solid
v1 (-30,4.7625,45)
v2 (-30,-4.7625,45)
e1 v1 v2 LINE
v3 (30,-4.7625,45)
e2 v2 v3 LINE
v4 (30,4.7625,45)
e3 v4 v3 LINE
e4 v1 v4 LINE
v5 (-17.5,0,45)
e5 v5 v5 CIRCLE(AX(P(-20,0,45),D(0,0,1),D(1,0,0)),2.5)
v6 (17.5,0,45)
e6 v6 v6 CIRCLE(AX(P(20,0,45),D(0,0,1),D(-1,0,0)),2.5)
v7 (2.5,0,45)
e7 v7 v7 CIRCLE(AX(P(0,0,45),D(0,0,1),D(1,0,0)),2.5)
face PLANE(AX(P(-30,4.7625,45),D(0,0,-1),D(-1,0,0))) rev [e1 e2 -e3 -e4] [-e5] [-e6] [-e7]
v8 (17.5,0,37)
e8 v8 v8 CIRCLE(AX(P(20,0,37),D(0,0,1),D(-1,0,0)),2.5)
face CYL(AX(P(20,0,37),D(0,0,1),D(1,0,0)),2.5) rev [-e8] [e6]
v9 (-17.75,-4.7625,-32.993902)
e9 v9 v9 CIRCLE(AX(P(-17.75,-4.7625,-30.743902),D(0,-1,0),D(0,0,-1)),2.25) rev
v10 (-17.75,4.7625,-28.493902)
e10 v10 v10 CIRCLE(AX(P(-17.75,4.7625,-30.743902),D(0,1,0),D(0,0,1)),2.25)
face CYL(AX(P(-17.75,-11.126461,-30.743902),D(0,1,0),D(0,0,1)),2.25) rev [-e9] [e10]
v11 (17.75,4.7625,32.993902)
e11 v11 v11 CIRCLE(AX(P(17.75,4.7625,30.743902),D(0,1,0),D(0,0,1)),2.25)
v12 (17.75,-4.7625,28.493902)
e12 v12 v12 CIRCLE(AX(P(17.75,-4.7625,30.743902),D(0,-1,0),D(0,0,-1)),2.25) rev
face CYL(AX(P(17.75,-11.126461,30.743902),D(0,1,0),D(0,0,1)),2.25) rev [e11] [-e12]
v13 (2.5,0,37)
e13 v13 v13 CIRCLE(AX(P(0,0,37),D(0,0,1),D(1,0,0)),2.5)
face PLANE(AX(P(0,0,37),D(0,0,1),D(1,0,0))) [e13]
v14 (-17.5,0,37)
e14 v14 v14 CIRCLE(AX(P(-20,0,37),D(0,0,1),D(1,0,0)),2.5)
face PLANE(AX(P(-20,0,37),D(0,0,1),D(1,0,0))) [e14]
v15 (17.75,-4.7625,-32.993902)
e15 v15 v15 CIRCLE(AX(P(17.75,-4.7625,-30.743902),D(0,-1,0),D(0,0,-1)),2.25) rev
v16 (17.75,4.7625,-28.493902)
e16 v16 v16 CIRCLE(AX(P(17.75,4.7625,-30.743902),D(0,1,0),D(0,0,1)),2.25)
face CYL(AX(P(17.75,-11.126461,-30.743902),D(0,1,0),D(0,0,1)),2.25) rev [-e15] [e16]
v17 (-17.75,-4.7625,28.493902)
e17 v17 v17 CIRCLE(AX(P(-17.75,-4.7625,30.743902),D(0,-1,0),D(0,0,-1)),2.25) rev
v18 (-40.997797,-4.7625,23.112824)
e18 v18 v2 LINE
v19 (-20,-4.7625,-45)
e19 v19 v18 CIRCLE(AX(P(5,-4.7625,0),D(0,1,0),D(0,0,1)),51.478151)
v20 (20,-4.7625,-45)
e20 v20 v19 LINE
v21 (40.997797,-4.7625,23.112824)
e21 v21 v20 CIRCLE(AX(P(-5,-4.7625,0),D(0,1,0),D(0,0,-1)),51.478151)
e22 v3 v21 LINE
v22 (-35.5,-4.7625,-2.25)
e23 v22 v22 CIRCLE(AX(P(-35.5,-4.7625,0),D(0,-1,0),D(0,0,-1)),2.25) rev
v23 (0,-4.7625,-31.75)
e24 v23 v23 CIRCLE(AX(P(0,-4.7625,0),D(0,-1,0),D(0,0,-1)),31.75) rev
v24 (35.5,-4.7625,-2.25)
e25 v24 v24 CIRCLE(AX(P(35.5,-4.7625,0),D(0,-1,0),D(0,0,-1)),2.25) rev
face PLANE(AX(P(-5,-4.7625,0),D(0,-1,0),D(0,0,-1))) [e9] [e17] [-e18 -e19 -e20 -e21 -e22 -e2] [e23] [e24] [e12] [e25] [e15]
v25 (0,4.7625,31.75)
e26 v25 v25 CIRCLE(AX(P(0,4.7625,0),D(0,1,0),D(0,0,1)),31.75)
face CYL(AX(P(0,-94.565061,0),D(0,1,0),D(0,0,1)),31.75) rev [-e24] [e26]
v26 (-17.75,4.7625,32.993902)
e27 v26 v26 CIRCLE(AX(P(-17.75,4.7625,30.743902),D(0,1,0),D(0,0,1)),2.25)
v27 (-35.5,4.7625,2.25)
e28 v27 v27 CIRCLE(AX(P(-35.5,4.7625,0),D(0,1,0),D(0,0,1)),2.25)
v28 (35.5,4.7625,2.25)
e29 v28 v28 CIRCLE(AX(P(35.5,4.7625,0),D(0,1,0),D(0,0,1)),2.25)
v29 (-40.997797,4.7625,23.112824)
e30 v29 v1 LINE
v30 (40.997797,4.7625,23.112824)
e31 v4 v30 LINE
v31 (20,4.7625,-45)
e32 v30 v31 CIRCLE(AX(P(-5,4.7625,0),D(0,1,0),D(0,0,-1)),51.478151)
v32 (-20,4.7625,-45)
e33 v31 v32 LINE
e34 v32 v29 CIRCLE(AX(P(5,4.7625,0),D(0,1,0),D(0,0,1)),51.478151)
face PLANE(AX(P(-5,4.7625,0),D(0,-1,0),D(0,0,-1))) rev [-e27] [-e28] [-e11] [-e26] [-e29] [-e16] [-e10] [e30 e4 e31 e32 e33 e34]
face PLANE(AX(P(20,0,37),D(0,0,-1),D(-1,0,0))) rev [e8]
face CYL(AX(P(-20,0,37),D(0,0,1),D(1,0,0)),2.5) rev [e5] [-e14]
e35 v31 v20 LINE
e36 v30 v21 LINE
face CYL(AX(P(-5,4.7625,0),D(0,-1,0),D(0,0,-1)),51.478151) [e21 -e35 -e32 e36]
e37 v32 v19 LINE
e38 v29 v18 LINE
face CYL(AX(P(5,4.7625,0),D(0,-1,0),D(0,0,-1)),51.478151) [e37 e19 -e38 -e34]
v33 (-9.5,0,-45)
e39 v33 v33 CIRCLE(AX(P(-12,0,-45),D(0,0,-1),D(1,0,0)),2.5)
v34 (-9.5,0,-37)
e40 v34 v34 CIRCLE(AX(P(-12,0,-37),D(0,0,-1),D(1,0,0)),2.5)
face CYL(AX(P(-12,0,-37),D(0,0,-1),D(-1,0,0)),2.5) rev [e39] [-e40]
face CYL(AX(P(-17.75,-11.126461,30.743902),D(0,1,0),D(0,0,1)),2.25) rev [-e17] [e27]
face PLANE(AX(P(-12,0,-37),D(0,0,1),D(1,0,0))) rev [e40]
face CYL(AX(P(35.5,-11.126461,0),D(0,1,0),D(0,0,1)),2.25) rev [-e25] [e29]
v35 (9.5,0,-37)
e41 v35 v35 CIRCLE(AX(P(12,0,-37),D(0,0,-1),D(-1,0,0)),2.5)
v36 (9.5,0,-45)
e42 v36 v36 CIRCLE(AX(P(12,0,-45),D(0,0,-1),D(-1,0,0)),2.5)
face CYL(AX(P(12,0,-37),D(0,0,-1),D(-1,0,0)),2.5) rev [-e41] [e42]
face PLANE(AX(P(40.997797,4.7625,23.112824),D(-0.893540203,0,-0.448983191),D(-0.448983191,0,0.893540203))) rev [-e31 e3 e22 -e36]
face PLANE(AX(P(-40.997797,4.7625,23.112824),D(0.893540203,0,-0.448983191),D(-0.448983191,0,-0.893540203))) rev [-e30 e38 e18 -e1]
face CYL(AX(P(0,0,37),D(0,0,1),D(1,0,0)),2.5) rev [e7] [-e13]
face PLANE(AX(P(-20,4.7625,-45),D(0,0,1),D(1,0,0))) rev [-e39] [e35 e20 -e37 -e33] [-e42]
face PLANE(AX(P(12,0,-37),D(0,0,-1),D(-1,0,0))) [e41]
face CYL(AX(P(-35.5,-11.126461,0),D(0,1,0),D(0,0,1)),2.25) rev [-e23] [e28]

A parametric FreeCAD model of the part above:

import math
import FreeCAD as App
import Part
import Sketcher
from FreeCAD import Vector

doc = App.newDocument("Part")
body = doc.addObject("PartDesign::Body", "Body")

sketch1 = body.newObject("Sketcher::SketchObject", "Sketch")
sketch1.AttachmentSupport = (doc.getObject("XZ_Plane"), [""])
sketch1.MapMode = "FlatFace"
sketch1.addGeometry(Part.LineSegment(Vector(-30, 45, 0), Vector(30, 45, 0)), False)
sketch1.addGeometry(Part.LineSegment(Vector(30, 45, 0), Vector(41, 23, 0)), False)
sketch1.addGeometry(Part.ArcOfCircle(Part.Circle(Vector(-5, 0, 0), Vector(0, 0, 1), 51), math.radians(-61), math.radians(27)), False)
sketch1.addGeometry(Part.LineSegment(Vector(20, -45, 0), Vector(-20, -45, 0)), False)
sketch1.addGeometry(Part.ArcOfCircle(Part.Circle(Vector(5, 0, 0), Vector(0, 0, 1), 51), math.radians(153), math.radians(241)), False)
sketch1.addGeometry(Part.LineSegment(Vector(-41, 23, 0), Vector(-30, 45, 0)), False)
sketch1.addConstraint(Sketcher.Constraint("Coincident", 0, 2, 1, 1))
sketch1.addConstraint(Sketcher.Constraint("Tangent", 1, 2, 2, 2))
sketch1.addConstraint(Sketcher.Constraint("Coincident", 2, 1, 3, 1))
sketch1.addConstraint(Sketcher.Constraint("Coincident", 3, 2, 4, 2))
sketch1.addConstraint(Sketcher.Constraint("Tangent", 4, 1, 5, 1))
sketch1.addConstraint(Sketcher.Constraint("Coincident", 5, 2, 0, 1))
sketch1.addConstraint(Sketcher.Constraint("Horizontal", 0))
sketch1.addConstraint(Sketcher.Constraint("Horizontal", 3))
sketch1.addConstraint(Sketcher.Constraint("Equal", 2, 4))
sketch1.addConstraint(Sketcher.Constraint("Symmetric", 2, 3, 4, 3, -1, 1))
sketch1.addConstraint(Sketcher.Constraint("Symmetric", 1, 2, 4, 1, -2))
sketch1.addConstraint(Sketcher.Constraint("DistanceX", 0, 1, 0, 2, 60.0))
sketch1.addConstraint(Sketcher.Constraint("DistanceX", 3, 2, 3, 1, 40.0))
sketch1.addConstraint(Sketcher.Constraint("DistanceX", 2, 3, -1, 1, 5.0))
sketch1.addConstraint(Sketcher.Constraint("DistanceY", -1, 1, 0, 2, 45.0))
sketch1.addConstraint(Sketcher.Constraint("DistanceY", 2, 1, -1, 1, 45.0))
pad1 = body.newObject("PartDesign::Pad", "Pad")
pad1.Profile = sketch1
pad1.Length = 9.525
pad1.Midplane = True

sketch2 = body.newObject("Sketcher::SketchObject", "Sketch001")
sketch2.AttachmentSupport = (doc.getObject("XZ_Plane"), [""])
sketch2.MapMode = "FlatFace"
sketch2.AttachmentOffset = App.Placement(Vector(0, 0, -4.7625), App.Rotation())
sketch2.addGeometry(Part.Circle(Vector(0, 0, 0), Vector(0, 0, 1), 32), False)
sketch2.addConstraint(Sketcher.Constraint("Coincident", 0, 3, -1, 1))
sketch2.addConstraint(Sketcher.Constraint("Diameter", 0, 63.5))
pocket1 = body.newObject("PartDesign::Pocket", "Pocket")
pocket1.Profile = sketch2
pocket1.Length = 9.525
pocket1.Reversed = True

sketch3 = body.newObject("Sketcher::SketchObject", "Sketch002")
sketch3.AttachmentSupport = (doc.getObject("XZ_Plane"), [""])
sketch3.MapMode = "FlatFace"
sketch3.AttachmentOffset = App.Placement(Vector(0, 0, -4.7625), App.Rotation())
sketch3.addGeometry(Part.Circle(Vector(17.8, -30.7, 0), Vector(0, 0, 1), 2.2), False)
sketch3.addGeometry(Part.Circle(Vector(35.5, 0, 0), Vector(0, 0, 1), 2.2), False)
sketch3.addGeometry(Part.Circle(Vector(17.8, 30.7, 0), Vector(0, 0, 1), 2.2), False)
sketch3.addGeometry(Part.Circle(Vector(-17.8, 30.7, 0), Vector(0, 0, 1), 2.2), False)
sketch3.addGeometry(Part.Circle(Vector(-35.5, 0, 0), Vector(0, 0, 1), 2.2), False)
sketch3.addGeometry(Part.Circle(Vector(-17.8, -30.7, 0), Vector(0, 0, 1), 2.2), False)
sketch3.addConstraint(Sketcher.Constraint("Equal", 0, 1))
sketch3.addConstraint(Sketcher.Constraint("Equal", 1, 2))
sketch3.addConstraint(Sketcher.Constraint("Equal", 2, 3))
sketch3.addConstraint(Sketcher.Constraint("Equal", 3, 4))
sketch3.addConstraint(Sketcher.Constraint("Equal", 4, 5))
sketch3.addConstraint(Sketcher.Constraint("Symmetric", 0, 3, 3, 3, -1, 1))
sketch3.addConstraint(Sketcher.Constraint("Symmetric", 1, 3, 4, 3, -1, 1))
sketch3.addConstraint(Sketcher.Constraint("Symmetric", 2, 3, 5, 3, -1, 1))
sketch3.addConstraint(Sketcher.Constraint("Symmetric", 2, 3, 3, 3, -2))
sketch3.addConstraint(Sketcher.Constraint("PointOnObject", 1, 3, -1))
sketch3.addConstraint(Sketcher.Constraint("Diameter", 0, 4.5))
sketch3.addConstraint(Sketcher.Constraint("DistanceX", 4, 3, 1, 3, 71.0))
sketch3.addConstraint(Sketcher.Constraint("DistanceX", 3, 3, 2, 3, 35.5))
sketch3.addConstraint(Sketcher.Constraint("DistanceY", 0, 3, -1, 1, 30.743902))
pocket2 = body.newObject("PartDesign::Pocket", "Pocket001")
pocket2.Profile = sketch3
pocket2.Length = 9.525
pocket2.Reversed = True

sketch4 = body.newObject("Sketcher::SketchObject", "Sketch003")
sketch4.AttachmentSupport = (doc.getObject("XY_Plane"), [""])
sketch4.MapMode = "FlatFace"
sketch4.AttachmentOffset = App.Placement(Vector(0, 0, -45), App.Rotation())
sketch4.addGeometry(Part.Circle(Vector(12, 0, 0), Vector(0, 0, 1), 2.5), False)
sketch4.addGeometry(Part.Circle(Vector(-12, 0, 0), Vector(0, 0, 1), 2.5), False)
sketch4.addConstraint(Sketcher.Constraint("Equal", 0, 1))
sketch4.addConstraint(Sketcher.Constraint("Symmetric", 0, 3, 1, 3, -1, 1))
sketch4.addConstraint(Sketcher.Constraint("PointOnObject", 0, 3, -1))
sketch4.addConstraint(Sketcher.Constraint("Diameter", 0, 5.0))
sketch4.addConstraint(Sketcher.Constraint("DistanceX", -1, 1, 0, 3, 12.0))
pocket3 = body.newObject("PartDesign::Pocket", "Pocket002")
pocket3.Profile = sketch4
pocket3.Length = 8
pocket3.Reversed = True

sketch5 = body.newObject("Sketcher::SketchObject", "Sketch004")
sketch5.AttachmentSupport = (doc.getObject("XY_Plane"), [""])
sketch5.MapMode = "FlatFace"
sketch5.AttachmentOffset = App.Placement(Vector(0, 0, 45), App.Rotation())
sketch5.addGeometry(Part.Circle(Vector(-20, 0, 0), Vector(0, 0, 1), 2.5), False)
sketch5.addGeometry(Part.Circle(Vector(20, 0, 0), Vector(0, 0, 1), 2.5), False)
sketch5.addGeometry(Part.Circle(Vector(0, 0, 0), Vector(0, 0, 1), 2.5), False)
sketch5.addConstraint(Sketcher.Constraint("Coincident", 2, 3, -1, 1))
sketch5.addConstraint(Sketcher.Constraint("Equal", 0, 1))
sketch5.addConstraint(Sketcher.Constraint("Equal", 1, 2))
sketch5.addConstraint(Sketcher.Constraint("Symmetric", 0, 3, 1, 3, -1, 1))
sketch5.addConstraint(Sketcher.Constraint("PointOnObject", 0, 3, -1))
sketch5.addConstraint(Sketcher.Constraint("Diameter", 0, 5.0))
sketch5.addConstraint(Sketcher.Constraint("DistanceX", 0, 3, -1, 1, 20.0))
pocket4 = body.newObject("PartDesign::Pocket", "Pocket003")
pocket4.Profile = sketch5
pocket4.Length = 8

doc.recompute()
